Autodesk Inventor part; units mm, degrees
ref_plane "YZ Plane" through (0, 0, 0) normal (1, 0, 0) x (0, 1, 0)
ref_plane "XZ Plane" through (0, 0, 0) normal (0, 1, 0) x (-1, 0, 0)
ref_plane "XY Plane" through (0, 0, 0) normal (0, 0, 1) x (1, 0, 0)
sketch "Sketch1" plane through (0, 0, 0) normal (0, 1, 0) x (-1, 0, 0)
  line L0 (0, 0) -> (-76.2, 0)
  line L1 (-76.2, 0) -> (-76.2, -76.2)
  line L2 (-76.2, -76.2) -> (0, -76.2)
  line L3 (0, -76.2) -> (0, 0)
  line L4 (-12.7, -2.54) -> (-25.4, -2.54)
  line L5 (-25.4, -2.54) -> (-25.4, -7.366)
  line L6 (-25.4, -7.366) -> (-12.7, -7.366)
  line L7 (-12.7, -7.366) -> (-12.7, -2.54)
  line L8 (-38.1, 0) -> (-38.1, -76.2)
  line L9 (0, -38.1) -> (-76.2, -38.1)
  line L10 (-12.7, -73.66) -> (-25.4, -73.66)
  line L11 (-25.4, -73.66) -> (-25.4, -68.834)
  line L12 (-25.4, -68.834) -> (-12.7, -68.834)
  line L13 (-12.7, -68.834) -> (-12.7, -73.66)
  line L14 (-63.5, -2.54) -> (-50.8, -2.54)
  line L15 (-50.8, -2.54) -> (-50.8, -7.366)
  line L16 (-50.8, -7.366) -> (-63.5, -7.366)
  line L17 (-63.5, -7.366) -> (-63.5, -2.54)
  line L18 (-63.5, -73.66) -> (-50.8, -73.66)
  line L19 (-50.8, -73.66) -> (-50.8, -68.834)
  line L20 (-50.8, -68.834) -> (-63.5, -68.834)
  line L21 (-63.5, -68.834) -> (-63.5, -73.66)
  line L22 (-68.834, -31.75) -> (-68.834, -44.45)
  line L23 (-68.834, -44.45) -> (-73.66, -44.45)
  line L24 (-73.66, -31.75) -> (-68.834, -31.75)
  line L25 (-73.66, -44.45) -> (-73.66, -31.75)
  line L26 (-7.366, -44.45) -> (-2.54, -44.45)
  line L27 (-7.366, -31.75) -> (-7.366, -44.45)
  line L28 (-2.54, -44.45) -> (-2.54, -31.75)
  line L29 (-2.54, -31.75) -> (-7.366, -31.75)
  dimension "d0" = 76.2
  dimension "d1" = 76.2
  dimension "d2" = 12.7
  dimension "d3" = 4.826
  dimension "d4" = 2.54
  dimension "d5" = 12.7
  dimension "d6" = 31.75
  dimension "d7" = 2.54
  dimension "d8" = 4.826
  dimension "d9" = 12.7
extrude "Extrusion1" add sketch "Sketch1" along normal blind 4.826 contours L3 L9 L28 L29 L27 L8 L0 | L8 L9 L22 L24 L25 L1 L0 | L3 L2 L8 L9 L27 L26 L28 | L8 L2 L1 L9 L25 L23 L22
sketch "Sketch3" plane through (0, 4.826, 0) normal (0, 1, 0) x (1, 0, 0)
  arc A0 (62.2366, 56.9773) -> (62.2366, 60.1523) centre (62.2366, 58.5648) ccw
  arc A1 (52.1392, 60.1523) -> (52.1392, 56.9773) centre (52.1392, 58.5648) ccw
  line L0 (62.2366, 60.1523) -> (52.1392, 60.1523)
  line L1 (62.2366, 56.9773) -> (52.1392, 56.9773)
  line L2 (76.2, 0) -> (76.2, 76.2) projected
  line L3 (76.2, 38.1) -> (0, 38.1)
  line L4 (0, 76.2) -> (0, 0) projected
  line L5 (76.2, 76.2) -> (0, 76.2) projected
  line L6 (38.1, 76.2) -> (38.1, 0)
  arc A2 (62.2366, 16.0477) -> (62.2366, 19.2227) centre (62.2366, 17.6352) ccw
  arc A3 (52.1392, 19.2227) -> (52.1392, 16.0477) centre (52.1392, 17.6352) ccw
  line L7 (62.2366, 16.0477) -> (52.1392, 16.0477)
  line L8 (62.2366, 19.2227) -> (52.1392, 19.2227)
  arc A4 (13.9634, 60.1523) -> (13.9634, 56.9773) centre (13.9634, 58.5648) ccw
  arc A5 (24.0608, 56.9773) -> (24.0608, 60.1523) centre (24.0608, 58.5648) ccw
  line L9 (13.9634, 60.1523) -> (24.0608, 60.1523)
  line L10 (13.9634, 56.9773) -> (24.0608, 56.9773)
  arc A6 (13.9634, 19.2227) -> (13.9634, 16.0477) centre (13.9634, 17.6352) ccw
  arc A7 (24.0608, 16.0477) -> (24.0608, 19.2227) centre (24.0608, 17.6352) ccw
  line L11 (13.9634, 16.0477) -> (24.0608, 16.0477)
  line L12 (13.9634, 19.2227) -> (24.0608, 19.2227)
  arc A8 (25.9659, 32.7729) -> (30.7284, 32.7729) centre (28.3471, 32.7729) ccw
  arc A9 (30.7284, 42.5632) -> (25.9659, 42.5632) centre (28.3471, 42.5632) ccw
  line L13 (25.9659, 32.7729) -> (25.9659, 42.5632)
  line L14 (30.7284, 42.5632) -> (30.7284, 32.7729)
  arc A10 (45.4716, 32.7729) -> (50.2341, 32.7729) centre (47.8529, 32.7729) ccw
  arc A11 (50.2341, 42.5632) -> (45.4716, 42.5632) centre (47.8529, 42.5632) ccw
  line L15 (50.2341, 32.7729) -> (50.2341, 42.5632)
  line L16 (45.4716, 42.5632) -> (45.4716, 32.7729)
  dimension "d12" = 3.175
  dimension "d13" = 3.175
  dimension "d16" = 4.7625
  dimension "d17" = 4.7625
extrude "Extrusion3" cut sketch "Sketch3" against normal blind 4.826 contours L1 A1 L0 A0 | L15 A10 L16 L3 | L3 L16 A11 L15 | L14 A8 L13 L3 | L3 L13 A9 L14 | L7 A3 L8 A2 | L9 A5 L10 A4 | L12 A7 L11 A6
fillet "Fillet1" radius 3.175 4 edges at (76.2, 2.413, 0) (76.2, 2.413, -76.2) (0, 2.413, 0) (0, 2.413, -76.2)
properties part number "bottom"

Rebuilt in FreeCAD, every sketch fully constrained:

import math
import FreeCAD as App
import Part
import Sketcher

V = App.Vector
Q = App.Units.Quantity


def edges_at(feature, points):
    """Names of the edges that pass closest to the given points."""
    edges = feature.Shape.Edges
    near = lambda p: min(range(len(edges)), key=lambda i: edges[i].distToShape(Part.Vertex(*p))[0])
    return sorted({f"Edge{near(p) + 1}" for p in points})


def add_polygon(sketch, points):
    """Adds a closed chain of lines whose ends are joined by coincident constraints."""
    first, n = sketch.GeometryCount, len(points)
    for a, b in zip(points, points[1:] + points[:1]):
        sketch.addGeometry(Part.LineSegment(App.Vector(*a, 0), App.Vector(*b, 0)), False)
    for i in range(n):
        sketch.addConstraint(Sketcher.Constraint("Coincident", first + i, 2, first + (i + 1) % n, 1))

doc = App.newDocument("Part")
body = doc.addObject("PartDesign::Body", "Body")

sketch1 = body.newObject("Sketcher::SketchObject", "Sketch")
sketch1.AttachmentSupport = (doc.getObject("XZ_Plane"), [""])
sketch1.MapMode = "FlatFace"
add_polygon(sketch1, [(0, 0), (76.2, 0), (76.2, -76.2), (0, -76.2)])
add_polygon(sketch1, [(2.54, -31.75), (2.54, -44.45), (7.366, -44.45), (7.366, -31.75)])
add_polygon(sketch1, [(25.4, -2.54), (12.7, -2.54), (12.7, -7.366), (25.4, -7.366)])
add_polygon(sketch1, [(25.4, -73.66), (25.4, -68.834), (12.7, -68.834), (12.7, -73.66)])
add_polygon(sketch1, [(63.5, -2.54), (50.8, -2.54), (50.8, -7.366), (63.5, -7.366)])
add_polygon(sketch1, [(68.834, -31.75), (68.834, -44.45), (73.66, -44.45), (73.66, -31.75)])
add_polygon(sketch1, [(63.5, -73.66), (63.5, -68.834), (50.8, -68.834), (50.8, -73.66)])
sketch1.addConstraint([
    Sketcher.Constraint("Horizontal", 0),
    Sketcher.Constraint("Vertical", 1),
    Sketcher.Constraint("Horizontal", 2),
    Sketcher.Constraint("Vertical", 3),
    Sketcher.Constraint("Vertical", 4),
    Sketcher.Constraint("Horizontal", 5),
    Sketcher.Constraint("Vertical", 6),
    Sketcher.Constraint("Horizontal", 7),
    Sketcher.Constraint("Horizontal", 8),
    Sketcher.Constraint("Vertical", 9),
    Sketcher.Constraint("Horizontal", 10),
    Sketcher.Constraint("Vertical", 11),
    Sketcher.Constraint("Vertical", 12),
    Sketcher.Constraint("Horizontal", 13),
    Sketcher.Constraint("Vertical", 14),
    Sketcher.Constraint("Horizontal", 15),
    Sketcher.Constraint("Horizontal", 16),
    Sketcher.Constraint("Vertical", 17),
    Sketcher.Constraint("Horizontal", 18),
    Sketcher.Constraint("Vertical", 19),
    Sketcher.Constraint("Vertical", 20),
    Sketcher.Constraint("Horizontal", 21),
    Sketcher.Constraint("Vertical", 22),
    Sketcher.Constraint("Horizontal", 23),
    Sketcher.Constraint("Vertical", 24),
    Sketcher.Constraint("Horizontal", 25),
    Sketcher.Constraint("Vertical", 26),
    Sketcher.Constraint("Horizontal", 27),
    Sketcher.Constraint("Coincident", 3, 2, -1, 1),
    Sketcher.Constraint("Horizontal", 11, 2, 16, 2),
    Sketcher.Constraint("Horizontal", 10, 2, 17, 2),
    Sketcher.Constraint("Horizontal", 5, 2, 20, 2),
    Sketcher.Constraint("Horizontal", 7, 2, 22, 2),
    Sketcher.Constraint("Horizontal", 13, 2, 24, 2),
    Sketcher.Constraint("Horizontal", 15, 2, 26, 2),
    Sketcher.Constraint("Vertical", 11, 2, 12, 2),
    Sketcher.Constraint("Vertical", 9, 2, 13, 2),
    Sketcher.Constraint("Vertical", 19, 2, 24, 2),
    Sketcher.Constraint("Vertical", 17, 2, 25, 2),
    Sketcher.Constraint("Equal", 15, 16),
    Sketcher.Constraint("Equal", 7, 21),
    Sketcher.Constraint("Equal", 2, 1),
    Sketcher.Constraint("Equal", 27, 4),
    Sketcher.Constraint("Equal", 23, 9),
    Sketcher.Constraint("Equal", 11, 12),
    Sketcher.Constraint("DistanceX", 0, 1, 0, 2, Q("3 in")),
    Sketcher.Constraint("DistanceX", 8, 2, 8, 1, Q("0.5 in")),
    Sketcher.Constraint("DistanceX", 5, 1, 5, 2, Q("0.19 in")),
    Sketcher.Constraint("DistanceX", -1, 1, 4, 2, Q("0.1 in")),
    Sketcher.Constraint("DistanceX", -1, 1, 8, 2, Q("0.5 in")),
    Sketcher.Constraint("DistanceY", 8, 2, -1, 1, Q("0.1 in")),
    Sketcher.Constraint("DistanceY", 2, 2, 14, 2, Q("0.1 in")),
    Sketcher.Constraint("DistanceX", 18, 2, 0, 2, Q("0.5 in")),
    Sketcher.Constraint("DistanceX", 21, 2, 1, 2, Q("0.1 in")),
    Sketcher.Constraint("DistanceY", 6, 2, -1, 1, Q("1.25 in")),
])
pad1 = body.newObject("PartDesign::Pad", "Pad")
pad1.Profile = sketch1
pad1.Length = Q("0.19 in")
pad1.Reversed = True

sketch2 = body.newObject("Sketcher::SketchObject", "Sketch001")
sketch2.AttachmentSupport = (doc.getObject("XZ_Plane"), [""])
sketch2.MapMode = "FlatFace"
sketch2.AttachmentOffset = App.Placement(V(0, 0, -0.19 * 25.4), App.Rotation())
sketch2.addGeometry([
    Part.LineSegment(V(52.1392, -56.9773, 0), V(62.2366, -56.9773, 0)),
    Part.ArcOfCircle(Part.Circle(V(62.2366, -58.5648, 0), V(0, 0, 1), 1.5875), math.radians(-90), math.radians(90)),
    Part.LineSegment(V(62.2366, -60.1523, 0), V(52.1392, -60.1523, 0)),
    Part.ArcOfCircle(Part.Circle(V(52.1392, -58.5648, 0), V(0, 0, 1), 1.5875), math.radians(90), math.radians(270)),
    Part.LineSegment(V(50.2341, -32.7729, 0), V(50.2341, -42.5632, 0)),
    Part.ArcOfCircle(Part.Circle(V(47.8529, -42.5632, 0), V(0, 0, 1), 2.3812), math.radians(180), math.radians(360)),
    Part.LineSegment(V(45.4716, -42.5632, 0), V(45.4716, -32.7729, 0)),
    Part.ArcOfCircle(Part.Circle(V(47.8529, -32.7729, 0), V(0, 0, 1), 2.3813), math.radians(0), math.radians(180)),
    Part.LineSegment(V(30.7284, -32.7729, 0), V(30.7284, -42.5632, 0)),
    Part.ArcOfCircle(Part.Circle(V(28.3471, -42.5632, 0), V(0, 0, 1), 2.3813), math.radians(180), math.radians(360)),
    Part.LineSegment(V(25.9659, -42.5632, 0), V(25.9659, -32.7729, 0)),
    Part.ArcOfCircle(Part.Circle(V(28.3471, -32.7729, 0), V(0, 0, 1), 2.3812), math.radians(0), math.radians(180)),
    Part.LineSegment(V(52.1392, -16.0477, 0), V(62.2366, -16.0477, 0)),
    Part.ArcOfCircle(Part.Circle(V(62.2366, -17.6352, 0), V(0, 0, 1), 1.5875), math.radians(-90), math.radians(90)),
    Part.LineSegment(V(62.2366, -19.2227, 0), V(52.1392, -19.2227, 0)),
    Part.ArcOfCircle(Part.Circle(V(52.1392, -17.6352, 0), V(0, 0, 1), 1.5875), math.radians(90), math.radians(270)),
    Part.LineSegment(V(24.0608, -60.1523, 0), V(13.9634, -60.1523, 0)),
    Part.ArcOfCircle(Part.Circle(V(13.9634, -58.5648, 0), V(0, 0, 1), 1.5875), math.radians(90), math.radians(270)),
    Part.LineSegment(V(13.9634, -56.9773, 0), V(24.0608, -56.9773, 0)),
    Part.ArcOfCircle(Part.Circle(V(24.0608, -58.5648, 0), V(0, 0, 1), 1.5875), math.radians(-90), math.radians(90)),
    Part.LineSegment(V(24.0608, -19.2227, 0), V(13.9634, -19.2227, 0)),
    Part.ArcOfCircle(Part.Circle(V(13.9634, -17.6352, 0), V(0, 0, 1), 1.5875), math.radians(90), math.radians(270)),
    Part.LineSegment(V(13.9634, -16.0477, 0), V(24.0608, -16.0477, 0)),
    Part.ArcOfCircle(Part.Circle(V(24.0608, -17.6352, 0), V(0, 0, 1), 1.5875), math.radians(-90), math.radians(90)),
], False)
sketch2.addConstraint([
    Sketcher.Constraint("Tangent", 0, 2, 1, 2),
    Sketcher.Constraint("Tangent", 1, 1, 2, 1),
    Sketcher.Constraint("Tangent", 2, 2, 3, 2),
    Sketcher.Constraint("Tangent", 3, 1, 0, 1),
    Sketcher.Constraint("Tangent", 4, 2, 5, 2),
    Sketcher.Constraint("Tangent", 5, 1, 6, 1),
    Sketcher.Constraint("Tangent", 6, 2, 7, 2),
    Sketcher.Constraint("Tangent", 7, 1, 4, 1),
    Sketcher.Constraint("Tangent", 8, 2, 9, 2),
    Sketcher.Constraint("Tangent", 9, 1, 10, 1),
    Sketcher.Constraint("Tangent", 10, 2, 11, 2),
    Sketcher.Constraint("Tangent", 11, 1, 8, 1),
    Sketcher.Constraint("Tangent", 12, 2, 13, 2),
    Sketcher.Constraint("Tangent", 13, 1, 14, 1),
    Sketcher.Constraint("Tangent", 14, 2, 15, 2),
    Sketcher.Constraint("Tangent", 15, 1, 12, 1),
    Sketcher.Constraint("Tangent", 16, 2, 17, 2),
    Sketcher.Constraint("Tangent", 17, 1, 18, 1),
    Sketcher.Constraint("Tangent", 18, 2, 19, 2),
    Sketcher.Constraint("Tangent", 19, 1, 16, 1),
    Sketcher.Constraint("Tangent", 20, 2, 21, 2),
    Sketcher.Constraint("Tangent", 21, 1, 22, 1),
    Sketcher.Constraint("Tangent", 22, 2, 23, 2),
    Sketcher.Constraint("Tangent", 23, 1, 20, 1),
    Sketcher.Constraint("Horizontal", 0),
    Sketcher.Constraint("Horizontal", 2),
    Sketcher.Constraint("Vertical", 4),
    Sketcher.Constraint("Vertical", 6),
    Sketcher.Constraint("Vertical", 8),
    Sketcher.Constraint("Vertical", 10),
    Sketcher.Constraint("Horizontal", 12),
    Sketcher.Constraint("Horizontal", 14),
    Sketcher.Constraint("Horizontal", 16),
    Sketcher.Constraint("Horizontal", 18),
    Sketcher.Constraint("Horizontal", 20),
    Sketcher.Constraint("Horizontal", 22),
    Sketcher.Constraint("Equal", 7, 9),
    Sketcher.Constraint("Equal", 3, 13),
    Sketcher.Constraint("Equal", 15, 17),
    Sketcher.Constraint("Equal", 19, 21),
    Sketcher.Constraint("Horizontal", 5, 3, 9, 3),
    Sketcher.Constraint("Horizontal", 7, 3, 11, 3),
    Sketcher.Constraint("Horizontal", 3, 3, 17, 3),
    Sketcher.Constraint("Horizontal", 15, 3, 21, 3),
    Sketcher.Constraint("Vertical", 1, 3, 13, 3),
    Sketcher.Constraint("Vertical", 3, 3, 15, 3),
    Sketcher.Constraint("Vertical", 17, 3, 21, 3),
    Sketcher.Constraint("Vertical", 19, 3, 23, 3),
    Sketcher.Constraint("Equal", 14, 16),
    Sketcher.Constraint("Radius", 1, Q("0.0625 in")),
    Sketcher.Constraint("Radius", 5, Q("0.093748 in")),
    Sketcher.Constraint("DistanceX", 4, 2, 3, 1, Q("0.075 in")),
    Sketcher.Constraint("DistanceX", 19, 3, 9, 1, Q("0.075 in")),
    Sketcher.Constraint("DistanceX", 0, 1, 0, 2, 10.0974),
    Sketcher.Constraint("DistanceY", 4, 2, 4, 1, 9.7903),
    Sketcher.Constraint("DistanceY", 1, 3, -1, 1, Q("2.3057 in")),
    Sketcher.Constraint("DistanceY", 13, 3, -1, 1, Q("0.6943 in")),
    Sketcher.Constraint("DistanceX", 9, 3, 3, 3, Q("0.9367 in")),
    Sketcher.Constraint("DistanceX", -1, 1, 1, 3, 62.2366),
    Sketcher.Constraint("DistanceY", 5, 3, -1, 1, 42.5632),
])
pocket1 = body.newObject("PartDesign::Pocket", "Pocket")
pocket1.Profile = sketch2
pocket1.Length = Q("0.19 in")
pocket1.Reversed = True
doc.recompute()

fillet = body.newObject("PartDesign::Fillet", "Fillet")
fillet.Base = (pocket1, edges_at(pocket1, [
    (76.2, 2.413, 0),
    (76.2, 2.413, -76.2),
    (0, 2.413, 0),
    (0, 2.413, -76.2),
]))
fillet.Radius = Q("0.125 in")

doc.recompute()
